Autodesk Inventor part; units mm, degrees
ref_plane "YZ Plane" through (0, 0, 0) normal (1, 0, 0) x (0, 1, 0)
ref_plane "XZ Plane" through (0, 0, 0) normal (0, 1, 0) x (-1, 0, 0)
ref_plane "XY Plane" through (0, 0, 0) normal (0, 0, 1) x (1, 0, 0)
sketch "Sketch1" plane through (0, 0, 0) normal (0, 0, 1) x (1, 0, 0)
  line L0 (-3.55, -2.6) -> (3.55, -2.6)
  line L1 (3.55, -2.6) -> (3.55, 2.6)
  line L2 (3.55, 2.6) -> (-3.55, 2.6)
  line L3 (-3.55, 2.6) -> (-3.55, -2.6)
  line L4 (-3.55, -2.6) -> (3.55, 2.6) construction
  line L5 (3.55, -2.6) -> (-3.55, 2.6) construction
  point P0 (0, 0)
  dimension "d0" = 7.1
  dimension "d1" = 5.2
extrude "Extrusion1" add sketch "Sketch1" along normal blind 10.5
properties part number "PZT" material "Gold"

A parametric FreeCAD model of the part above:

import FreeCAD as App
import Part
import Sketcher

V = App.Vector
Q = App.Units.Quantity


def add_polygon(sketch, points):
    """Adds a closed chain of lines whose ends are joined by coincident constraints."""
    first, n = sketch.GeometryCount, len(points)
    for a, b in zip(points, points[1:] + points[:1]):
        sketch.addGeometry(Part.LineSegment(App.Vector(*a, 0), App.Vector(*b, 0)), False)
    for i in range(n):
        sketch.addConstraint(Sketcher.Constraint("Coincident", first + i, 2, first + (i + 1) % n, 1))

doc = App.newDocument("Part")
params = doc.addObject("Spreadsheet::Sheet", "Params")
for row, (alias, value) in enumerate([
    ("sketch1_width", "7.1 mm"),
    ("sketch1_height", "5.2 mm"),
    ("pad1_length", "10.5 mm"),
], start=1):
    params.set(f"A{row}", alias)
    params.set(f"B{row}", "=" + value)
    params.setAlias(f"B{row}", alias)

body = doc.addObject("PartDesign::Body", "Body")

# Sketch on XY plane
sketch1 = body.newObject("Sketcher::SketchObject", "Sketch")
sketch1.AttachmentSupport = (doc.getObject("XY_Plane"), [""])
sketch1.MapMode = "FlatFace"
add_polygon(sketch1, [(-4, 3), (-4, -3), (4, -3), (4, 3)])  # lines 0-3
sketch1.addConstraint([
    Sketcher.Constraint("Vertical", 0),
    Sketcher.Constraint("Horizontal", 1),
    Sketcher.Constraint("Vertical", 2),
    Sketcher.Constraint("Horizontal", 3),
    Sketcher.Constraint("Symmetric", 0, 2, 2, 2, -1, 1),
    Sketcher.Constraint("DistanceX", 1, 1, 1, 2, Q("7.1 mm")),
    Sketcher.Constraint("DistanceY", 0, 2, 0, 1, Q("5.2 mm")),
])
sketch1.setExpression("Constraints[9]", "Params.sketch1_width")
sketch1.setExpression("Constraints[10]", "Params.sketch1_height")
pad1 = body.newObject("PartDesign::Pad", "Pad")
pad1.Profile = sketch1
pad1.setExpression("Length", "Params.pad1_length")

doc.recompute()
